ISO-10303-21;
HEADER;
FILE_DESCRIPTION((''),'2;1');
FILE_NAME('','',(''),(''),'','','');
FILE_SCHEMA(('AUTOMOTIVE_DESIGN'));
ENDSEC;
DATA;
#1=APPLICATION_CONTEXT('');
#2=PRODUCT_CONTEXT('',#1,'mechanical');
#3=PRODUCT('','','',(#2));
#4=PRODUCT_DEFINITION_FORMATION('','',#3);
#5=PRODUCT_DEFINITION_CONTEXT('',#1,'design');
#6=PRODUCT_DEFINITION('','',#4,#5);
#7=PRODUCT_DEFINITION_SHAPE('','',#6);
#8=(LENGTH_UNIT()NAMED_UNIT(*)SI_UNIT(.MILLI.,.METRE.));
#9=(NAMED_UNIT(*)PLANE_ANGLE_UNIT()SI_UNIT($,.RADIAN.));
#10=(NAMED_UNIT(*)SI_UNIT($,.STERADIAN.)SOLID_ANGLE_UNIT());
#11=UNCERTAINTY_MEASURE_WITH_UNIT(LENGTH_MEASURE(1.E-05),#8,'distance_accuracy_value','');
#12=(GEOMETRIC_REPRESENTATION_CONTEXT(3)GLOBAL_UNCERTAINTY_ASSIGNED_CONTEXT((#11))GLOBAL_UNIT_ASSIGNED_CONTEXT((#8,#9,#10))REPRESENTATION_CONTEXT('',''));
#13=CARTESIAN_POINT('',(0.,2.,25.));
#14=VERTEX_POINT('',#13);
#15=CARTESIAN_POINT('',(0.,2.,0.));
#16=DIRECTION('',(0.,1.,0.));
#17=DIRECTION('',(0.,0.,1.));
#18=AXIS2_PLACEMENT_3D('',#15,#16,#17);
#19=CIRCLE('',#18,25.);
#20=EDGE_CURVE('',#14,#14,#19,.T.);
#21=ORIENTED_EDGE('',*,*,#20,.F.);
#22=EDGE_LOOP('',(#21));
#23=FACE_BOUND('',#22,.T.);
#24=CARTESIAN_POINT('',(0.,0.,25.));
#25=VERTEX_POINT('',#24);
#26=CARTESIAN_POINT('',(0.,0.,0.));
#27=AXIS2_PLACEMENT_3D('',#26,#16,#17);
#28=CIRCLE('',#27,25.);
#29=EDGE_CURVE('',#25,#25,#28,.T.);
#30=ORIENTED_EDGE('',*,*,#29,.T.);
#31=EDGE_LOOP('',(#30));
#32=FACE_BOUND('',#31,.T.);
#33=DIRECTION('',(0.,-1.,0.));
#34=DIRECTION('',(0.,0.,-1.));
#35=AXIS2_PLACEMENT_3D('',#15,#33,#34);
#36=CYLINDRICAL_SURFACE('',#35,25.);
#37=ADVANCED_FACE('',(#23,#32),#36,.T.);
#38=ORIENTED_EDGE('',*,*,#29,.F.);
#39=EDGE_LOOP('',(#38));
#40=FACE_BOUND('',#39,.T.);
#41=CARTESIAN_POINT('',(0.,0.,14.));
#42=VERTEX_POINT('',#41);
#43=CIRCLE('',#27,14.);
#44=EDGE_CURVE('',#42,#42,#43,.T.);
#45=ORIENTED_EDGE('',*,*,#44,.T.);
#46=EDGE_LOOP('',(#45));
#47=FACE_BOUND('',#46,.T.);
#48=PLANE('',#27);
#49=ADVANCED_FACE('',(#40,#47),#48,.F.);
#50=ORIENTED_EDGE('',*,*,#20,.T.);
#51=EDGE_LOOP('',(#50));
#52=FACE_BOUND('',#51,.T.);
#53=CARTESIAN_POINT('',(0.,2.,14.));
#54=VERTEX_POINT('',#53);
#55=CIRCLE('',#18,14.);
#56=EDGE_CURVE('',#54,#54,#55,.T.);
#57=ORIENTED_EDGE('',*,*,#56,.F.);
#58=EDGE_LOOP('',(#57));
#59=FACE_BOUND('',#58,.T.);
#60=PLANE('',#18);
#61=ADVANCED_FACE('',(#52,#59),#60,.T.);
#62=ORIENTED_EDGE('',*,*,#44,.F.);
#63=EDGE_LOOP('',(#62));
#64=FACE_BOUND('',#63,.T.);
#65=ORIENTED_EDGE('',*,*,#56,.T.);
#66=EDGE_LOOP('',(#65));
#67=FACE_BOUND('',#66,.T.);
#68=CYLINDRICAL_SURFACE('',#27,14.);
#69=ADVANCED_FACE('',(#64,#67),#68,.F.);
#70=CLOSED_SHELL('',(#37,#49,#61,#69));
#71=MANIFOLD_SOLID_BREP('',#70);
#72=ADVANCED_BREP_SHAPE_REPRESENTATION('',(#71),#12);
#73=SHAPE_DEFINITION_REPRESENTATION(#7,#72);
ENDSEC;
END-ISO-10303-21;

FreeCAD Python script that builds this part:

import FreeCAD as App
import Part
import Sketcher

V = App.Vector
Q = App.Units.Quantity

doc = App.newDocument("Part")
body = doc.addObject("PartDesign::Body", "Body")

sketch1 = doc.addObject("Sketcher::SketchObject", "Sketch")
body.addObject(sketch1)
sketch1.AttachmentSupport = (doc.XZ_Plane, [""])
sketch1.MapMode = "FlatFace"
sketch1.addGeometry(Part.Circle(V(0, 0, 0), V(0, 0, 1), 25), False)
sketch1.addConstraint(Sketcher.Constraint("Coincident", 0, 3, -1, 1))
sketch1.addConstraint(Sketcher.Constraint("Diameter", 0, Q("50 mm")))
pad1 = doc.addObject("PartDesign::Pad", "Pad")
body.addObject(pad1)
pad1.Profile = sketch1
pad1.Length = 2
pad1.Reversed = True

sketch2 = doc.addObject("Sketcher::SketchObject", "Sketch001")
body.addObject(sketch2)
sketch2.AttachmentSupport = (doc.XZ_Plane, [""])
sketch2.MapMode = "FlatFace"
sketch2.AttachmentOffset = App.Placement(V(0, 0, -2), App.Rotation())
sketch2.addGeometry(Part.Circle(V(0, 0, 0), V(0, 0, 1), 14), False)
sketch2.addConstraint(Sketcher.Constraint("Coincident", 0, 3, -1, 1))
sketch2.addConstraint(Sketcher.Constraint("Diameter", 0, Q("28 mm")))
pocket1 = doc.addObject("PartDesign::Pocket", "Pocket")
body.addObject(pocket1)
pocket1.Profile = sketch2
pocket1.Type = "ThroughAll"
pocket1.Reversed = True

doc.recompute()
